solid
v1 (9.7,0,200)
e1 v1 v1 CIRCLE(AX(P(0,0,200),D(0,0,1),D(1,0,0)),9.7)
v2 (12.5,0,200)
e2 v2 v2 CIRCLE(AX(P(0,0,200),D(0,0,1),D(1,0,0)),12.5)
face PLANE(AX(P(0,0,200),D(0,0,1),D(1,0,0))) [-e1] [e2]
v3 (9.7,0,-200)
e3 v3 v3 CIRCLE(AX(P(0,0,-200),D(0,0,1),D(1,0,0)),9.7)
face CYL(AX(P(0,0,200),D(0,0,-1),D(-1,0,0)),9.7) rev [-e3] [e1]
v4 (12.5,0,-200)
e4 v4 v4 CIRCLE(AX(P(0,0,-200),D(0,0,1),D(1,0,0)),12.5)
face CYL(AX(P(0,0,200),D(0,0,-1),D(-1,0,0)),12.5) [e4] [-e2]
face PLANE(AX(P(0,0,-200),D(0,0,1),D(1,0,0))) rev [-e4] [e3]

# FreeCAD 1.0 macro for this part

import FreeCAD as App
import Part
import Sketcher
from FreeCAD import Vector

doc = App.newDocument("Part")
params = doc.addObject("Spreadsheet::Sheet", "Params")
for row, (alias, value) in enumerate([
    ("sketch1_diameter", "25 mm"),
    ("sketch1_diameter2", "19.4 mm"),
    ("pad1_length", "400 mm"),
], start=1):
    params.set(f"A{row}", alias)
    params.set(f"B{row}", "=" + value)
    params.setAlias(f"B{row}", alias)

body = doc.addObject("PartDesign::Body", "Body")

sketch1 = doc.addObject("Sketcher::SketchObject", "Sketch")
body.addObject(sketch1)
sketch1.AttachmentSupport = (doc.XY_Plane, [""])
sketch1.MapMode = "FlatFace"
sketch1.addGeometry([
    Part.Circle(Vector(0, 0, 0), Vector(0, 0, 1), 12),
    Part.Circle(Vector(0, 0, 0), Vector(0, 0, 1), 10),
], False)
sketch1.addConstraint([
    Sketcher.Constraint("Coincident", 0, 3, -1, 1),
    Sketcher.Constraint("Coincident", 1, 3, -1, 1),
    Sketcher.Constraint("Diameter", 0, 25.0),
    Sketcher.Constraint("Diameter", 1, 19.4),
])
sketch1.setExpression("Constraints[2]", "Params.sketch1_diameter")
sketch1.setExpression("Constraints[3]", "Params.sketch1_diameter2")
pad1 = doc.addObject("PartDesign::Pad", "Pad")
body.addObject(pad1)
pad1.Profile = sketch1
pad1.setExpression("Length", "Params.pad1_length")
pad1.Midplane = True

doc.recompute()
